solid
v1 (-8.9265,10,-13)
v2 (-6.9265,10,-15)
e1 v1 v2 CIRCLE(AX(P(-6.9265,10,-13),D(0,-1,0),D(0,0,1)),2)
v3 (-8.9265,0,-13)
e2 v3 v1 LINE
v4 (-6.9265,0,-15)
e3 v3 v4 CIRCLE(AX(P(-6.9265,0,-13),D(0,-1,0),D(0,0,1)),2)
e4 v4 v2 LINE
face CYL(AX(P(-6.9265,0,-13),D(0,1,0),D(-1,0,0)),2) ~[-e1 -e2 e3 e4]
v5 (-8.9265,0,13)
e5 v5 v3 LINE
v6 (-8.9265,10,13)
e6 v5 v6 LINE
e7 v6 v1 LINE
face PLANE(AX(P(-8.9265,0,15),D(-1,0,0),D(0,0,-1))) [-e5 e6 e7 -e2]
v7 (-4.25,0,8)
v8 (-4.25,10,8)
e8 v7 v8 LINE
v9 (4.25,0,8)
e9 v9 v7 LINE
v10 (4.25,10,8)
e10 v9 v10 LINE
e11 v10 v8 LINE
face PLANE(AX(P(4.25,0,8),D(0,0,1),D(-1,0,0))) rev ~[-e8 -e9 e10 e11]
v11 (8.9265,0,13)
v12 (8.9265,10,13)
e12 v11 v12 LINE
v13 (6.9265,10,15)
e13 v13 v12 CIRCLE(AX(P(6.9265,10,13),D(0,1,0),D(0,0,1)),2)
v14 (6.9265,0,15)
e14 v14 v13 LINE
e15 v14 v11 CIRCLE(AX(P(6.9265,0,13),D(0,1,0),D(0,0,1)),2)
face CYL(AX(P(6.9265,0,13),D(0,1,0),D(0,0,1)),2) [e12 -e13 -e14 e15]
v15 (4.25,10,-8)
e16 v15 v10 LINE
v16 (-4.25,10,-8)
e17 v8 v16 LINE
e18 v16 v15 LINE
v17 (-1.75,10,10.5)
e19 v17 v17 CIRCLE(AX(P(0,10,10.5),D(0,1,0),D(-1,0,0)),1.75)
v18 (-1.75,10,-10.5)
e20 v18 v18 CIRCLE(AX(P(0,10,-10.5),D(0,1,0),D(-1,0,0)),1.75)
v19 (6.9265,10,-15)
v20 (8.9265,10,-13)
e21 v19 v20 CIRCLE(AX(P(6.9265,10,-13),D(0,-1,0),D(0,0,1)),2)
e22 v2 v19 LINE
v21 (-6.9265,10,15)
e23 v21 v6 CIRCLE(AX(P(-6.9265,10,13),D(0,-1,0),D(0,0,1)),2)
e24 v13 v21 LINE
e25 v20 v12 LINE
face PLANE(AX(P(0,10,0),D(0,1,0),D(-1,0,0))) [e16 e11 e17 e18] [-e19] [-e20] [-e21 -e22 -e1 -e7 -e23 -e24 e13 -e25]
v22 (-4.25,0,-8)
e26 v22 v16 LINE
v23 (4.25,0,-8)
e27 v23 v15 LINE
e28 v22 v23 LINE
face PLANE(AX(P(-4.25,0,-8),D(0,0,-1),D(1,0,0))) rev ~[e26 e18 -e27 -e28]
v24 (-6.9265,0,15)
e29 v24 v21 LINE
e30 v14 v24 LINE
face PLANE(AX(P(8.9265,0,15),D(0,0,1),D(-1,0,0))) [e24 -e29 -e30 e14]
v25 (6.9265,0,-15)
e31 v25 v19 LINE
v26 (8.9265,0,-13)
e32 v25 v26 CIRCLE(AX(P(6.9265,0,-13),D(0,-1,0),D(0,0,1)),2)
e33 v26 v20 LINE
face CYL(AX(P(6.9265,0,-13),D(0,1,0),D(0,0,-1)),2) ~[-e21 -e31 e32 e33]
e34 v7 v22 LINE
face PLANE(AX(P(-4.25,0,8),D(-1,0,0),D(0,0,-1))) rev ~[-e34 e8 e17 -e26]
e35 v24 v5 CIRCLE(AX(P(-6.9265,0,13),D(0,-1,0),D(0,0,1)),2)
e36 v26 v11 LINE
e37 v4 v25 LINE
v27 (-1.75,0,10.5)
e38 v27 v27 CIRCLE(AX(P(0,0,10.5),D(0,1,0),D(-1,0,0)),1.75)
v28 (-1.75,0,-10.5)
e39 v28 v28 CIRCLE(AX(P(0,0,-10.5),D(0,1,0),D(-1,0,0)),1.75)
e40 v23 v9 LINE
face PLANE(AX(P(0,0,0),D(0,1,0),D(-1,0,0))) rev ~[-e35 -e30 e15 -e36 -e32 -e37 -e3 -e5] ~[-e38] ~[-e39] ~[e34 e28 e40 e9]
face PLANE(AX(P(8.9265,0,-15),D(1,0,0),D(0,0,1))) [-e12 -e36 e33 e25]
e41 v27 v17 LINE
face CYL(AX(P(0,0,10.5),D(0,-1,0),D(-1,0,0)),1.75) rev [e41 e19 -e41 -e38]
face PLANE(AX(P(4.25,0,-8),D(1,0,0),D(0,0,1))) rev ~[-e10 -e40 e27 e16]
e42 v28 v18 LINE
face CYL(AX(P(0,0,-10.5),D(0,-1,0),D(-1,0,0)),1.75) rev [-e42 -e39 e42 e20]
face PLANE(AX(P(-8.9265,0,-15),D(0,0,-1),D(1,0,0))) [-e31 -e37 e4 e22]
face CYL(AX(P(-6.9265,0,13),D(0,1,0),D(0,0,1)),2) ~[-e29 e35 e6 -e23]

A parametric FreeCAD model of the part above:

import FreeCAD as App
import Part
import Sketcher

V = App.Vector
Q = App.Units.Quantity


def edges_at(feature, points):
    """Names of the edges that pass closest to the given points."""
    edges = feature.Shape.Edges
    near = lambda p: min(range(len(edges)), key=lambda i: edges[i].distToShape(Part.Vertex(*p))[0])
    return sorted({f"Edge{near(p) + 1}" for p in points})


def add_polygon(sketch, points):
    """Adds a closed chain of lines whose ends are joined by coincident constraints."""
    first, n = sketch.GeometryCount, len(points)
    for a, b in zip(points, points[1:] + points[:1]):
        sketch.addGeometry(Part.LineSegment(App.Vector(*a, 0), App.Vector(*b, 0)), False)
    for i in range(n):
        sketch.addConstraint(Sketcher.Constraint("Coincident", first + i, 2, first + (i + 1) % n, 1))

doc = App.newDocument("Part")
body = doc.addObject("PartDesign::Body", "Body")

# Sketch on XZ plane
sketch1 = body.newObject("Sketcher::SketchObject", "Sketch")
sketch1.AttachmentSupport = (doc.getObject("XZ_Plane"), [""])
sketch1.MapMode = "FlatFace"
add_polygon(sketch1, [(-8.9, 15), (8.9, 15), (8.9, -15), (-8.9, -15)])  # lines 0-3
sketch1.addGeometry(Part.Circle(V(0, -10.5, 0), V(0, 0, 1), 1.8), False)  # 4
add_polygon(sketch1, [(4.2, -8), (4.2, 8), (-4.2, 8), (-4.2, -8)])  # lines 5-8
sketch1.addGeometry(Part.Circle(V(0, 10.5, 0), V(0, 0, 1), 1.8), False)  # 9
sketch1.addConstraint(Sketcher.Constraint("Horizontal", 0))
sketch1.addConstraint(Sketcher.Constraint("Vertical", 1))
sketch1.addConstraint(Sketcher.Constraint("Horizontal", 2))
sketch1.addConstraint(Sketcher.Constraint("Vertical", 3))
sketch1.addConstraint(Sketcher.Constraint("Vertical", 5))
sketch1.addConstraint(Sketcher.Constraint("Horizontal", 6))
sketch1.addConstraint(Sketcher.Constraint("Vertical", 7))
sketch1.addConstraint(Sketcher.Constraint("Horizontal", 8))
sketch1.addConstraint(Sketcher.Constraint("Equal", 4, 9))
sketch1.addConstraint(Sketcher.Constraint("Symmetric", 4, 3, 9, 3, -1, 1))
sketch1.addConstraint(Sketcher.Constraint("Symmetric", 0, 2, 2, 2, -1, 1))
sketch1.addConstraint(Sketcher.Constraint("Symmetric", 5, 2, 7, 2, -1, 1))
sketch1.addConstraint(Sketcher.Constraint("PointOnObject", 4, 3, -2))
sketch1.addConstraint(Sketcher.Constraint("Diameter", 4, Q("3.5 mm")))
sketch1.addConstraint(Sketcher.Constraint("DistanceY", 5, 1, 5, 2, Q("16 mm")))
sketch1.addConstraint(Sketcher.Constraint("DistanceX", 6, 2, 6, 1, Q("8.5 mm")))
sketch1.addConstraint(Sketcher.Constraint("DistanceY", 4, 3, -1, 1, Q("10.5 mm")))
sketch1.addConstraint(Sketcher.Constraint("DistanceY", 1, 2, 1, 1, Q("30 mm")))
sketch1.addConstraint(Sketcher.Constraint("DistanceX", 0, 1, 0, 2, Q("17.853 mm")))
pad1 = body.newObject("PartDesign::Pad", "Pad")
pad1.Profile = sketch1
pad1.Length = 10
pad1.Reversed = True
doc.recompute()

fillet = body.newObject("PartDesign::Fillet", "Fillet")
fillet.Base = (pad1, edges_at(pad1, [
    (-8.927, 5, 15),
    (-8.927, 5, -15),
    (8.927, 5, -15),
    (8.927, 5, 15),
]))
fillet.Radius = 2

doc.recompute()
